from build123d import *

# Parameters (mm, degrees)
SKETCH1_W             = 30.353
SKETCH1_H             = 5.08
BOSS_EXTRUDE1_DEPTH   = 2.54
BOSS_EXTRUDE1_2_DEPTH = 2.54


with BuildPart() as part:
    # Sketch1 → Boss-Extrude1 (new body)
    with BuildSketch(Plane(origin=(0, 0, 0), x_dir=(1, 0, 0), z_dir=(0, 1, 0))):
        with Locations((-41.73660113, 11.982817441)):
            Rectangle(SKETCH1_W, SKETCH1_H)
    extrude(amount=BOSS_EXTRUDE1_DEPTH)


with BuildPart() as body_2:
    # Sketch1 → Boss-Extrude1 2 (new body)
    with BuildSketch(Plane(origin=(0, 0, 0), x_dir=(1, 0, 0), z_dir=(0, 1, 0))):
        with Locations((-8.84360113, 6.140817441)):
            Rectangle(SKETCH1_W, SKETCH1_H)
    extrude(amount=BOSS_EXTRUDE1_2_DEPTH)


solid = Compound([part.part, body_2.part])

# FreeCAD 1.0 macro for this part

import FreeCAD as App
import Part
import Sketcher
from FreeCAD import Vector
Q = App.Units.Quantity


def add_polygon(sketch, points):
    """Adds a closed chain of lines whose ends are joined by coincident constraints."""
    first, n = sketch.GeometryCount, len(points)
    for a, b in zip(points, points[1:] + points[:1]):
        sketch.addGeometry(Part.LineSegment(App.Vector(*a, 0), App.Vector(*b, 0)), False)
    for i in range(n):
        sketch.addConstraint(Sketcher.Constraint("Coincident", first + i, 2, first + (i + 1) % n, 1))

doc = App.newDocument("Part")
body = doc.addObject("PartDesign::Body", "Body")

sketch1 = body.newObject("Sketcher::SketchObject", "Sketch")
sketch1.AttachmentSupport = (doc.getObject("XZ_Plane"), [""])
sketch1.MapMode = "FlatFace"
add_polygon(sketch1, [(-57, -15), (-57, -9), (-27, -9), (-27, -15)])
sketch1.addConstraint(Sketcher.Constraint("Vertical", 0))
sketch1.addConstraint(Sketcher.Constraint("Horizontal", 1))
sketch1.addConstraint(Sketcher.Constraint("Vertical", 2))
sketch1.addConstraint(Sketcher.Constraint("Horizontal", 3))
sketch1.addConstraint(Sketcher.Constraint("DistanceY", 0, 1, 0, 2, Q("0.2 in")))
sketch1.addConstraint(Sketcher.Constraint("DistanceX", 1, 1, 1, 2, Q("1.195 in")))
sketch1.addConstraint(Sketcher.Constraint("DistanceX", 0, 2, -1, 1, 56.913101))
sketch1.addConstraint(Sketcher.Constraint("DistanceY", 0, 2, -1, 1, 9.442817))
pad1 = body.newObject("PartDesign::Pad", "Pad")
pad1.Profile = sketch1
pad1.Length = Q("0.1 in")
pad1.Reversed = True
body2 = doc.addObject("PartDesign::Body", "Body001")

sketch2 = body2.newObject("Sketcher::SketchObject", "Sketch001")
sketch2.AttachmentSupport = (doc.getObject("XZ_Plane001"), [""])
sketch2.MapMode = "FlatFace"
add_polygon(sketch2, [(-24, -9), (-24, -4), (6, -4), (6, -9)])
sketch2.addConstraint(Sketcher.Constraint("Vertical", 0))
sketch2.addConstraint(Sketcher.Constraint("Horizontal", 1))
sketch2.addConstraint(Sketcher.Constraint("Vertical", 2))
sketch2.addConstraint(Sketcher.Constraint("Horizontal", 3))
sketch2.addConstraint(Sketcher.Constraint("DistanceY", 0, 1, 0, 2, Q("0.2 in")))
sketch2.addConstraint(Sketcher.Constraint("DistanceX", 1, 1, 1, 2, Q("1.195 in")))
sketch2.addConstraint(Sketcher.Constraint("DistanceX", 0, 2, -1, 1, 24.020101))
sketch2.addConstraint(Sketcher.Constraint("DistanceY", 0, 2, -1, 1, 3.600817))
pad2 = body2.newObject("PartDesign::Pad", "Pad001")
pad2.Profile = sketch2
pad2.Length = Q("0.1 in")
pad2.Reversed = True

doc.recompute()
